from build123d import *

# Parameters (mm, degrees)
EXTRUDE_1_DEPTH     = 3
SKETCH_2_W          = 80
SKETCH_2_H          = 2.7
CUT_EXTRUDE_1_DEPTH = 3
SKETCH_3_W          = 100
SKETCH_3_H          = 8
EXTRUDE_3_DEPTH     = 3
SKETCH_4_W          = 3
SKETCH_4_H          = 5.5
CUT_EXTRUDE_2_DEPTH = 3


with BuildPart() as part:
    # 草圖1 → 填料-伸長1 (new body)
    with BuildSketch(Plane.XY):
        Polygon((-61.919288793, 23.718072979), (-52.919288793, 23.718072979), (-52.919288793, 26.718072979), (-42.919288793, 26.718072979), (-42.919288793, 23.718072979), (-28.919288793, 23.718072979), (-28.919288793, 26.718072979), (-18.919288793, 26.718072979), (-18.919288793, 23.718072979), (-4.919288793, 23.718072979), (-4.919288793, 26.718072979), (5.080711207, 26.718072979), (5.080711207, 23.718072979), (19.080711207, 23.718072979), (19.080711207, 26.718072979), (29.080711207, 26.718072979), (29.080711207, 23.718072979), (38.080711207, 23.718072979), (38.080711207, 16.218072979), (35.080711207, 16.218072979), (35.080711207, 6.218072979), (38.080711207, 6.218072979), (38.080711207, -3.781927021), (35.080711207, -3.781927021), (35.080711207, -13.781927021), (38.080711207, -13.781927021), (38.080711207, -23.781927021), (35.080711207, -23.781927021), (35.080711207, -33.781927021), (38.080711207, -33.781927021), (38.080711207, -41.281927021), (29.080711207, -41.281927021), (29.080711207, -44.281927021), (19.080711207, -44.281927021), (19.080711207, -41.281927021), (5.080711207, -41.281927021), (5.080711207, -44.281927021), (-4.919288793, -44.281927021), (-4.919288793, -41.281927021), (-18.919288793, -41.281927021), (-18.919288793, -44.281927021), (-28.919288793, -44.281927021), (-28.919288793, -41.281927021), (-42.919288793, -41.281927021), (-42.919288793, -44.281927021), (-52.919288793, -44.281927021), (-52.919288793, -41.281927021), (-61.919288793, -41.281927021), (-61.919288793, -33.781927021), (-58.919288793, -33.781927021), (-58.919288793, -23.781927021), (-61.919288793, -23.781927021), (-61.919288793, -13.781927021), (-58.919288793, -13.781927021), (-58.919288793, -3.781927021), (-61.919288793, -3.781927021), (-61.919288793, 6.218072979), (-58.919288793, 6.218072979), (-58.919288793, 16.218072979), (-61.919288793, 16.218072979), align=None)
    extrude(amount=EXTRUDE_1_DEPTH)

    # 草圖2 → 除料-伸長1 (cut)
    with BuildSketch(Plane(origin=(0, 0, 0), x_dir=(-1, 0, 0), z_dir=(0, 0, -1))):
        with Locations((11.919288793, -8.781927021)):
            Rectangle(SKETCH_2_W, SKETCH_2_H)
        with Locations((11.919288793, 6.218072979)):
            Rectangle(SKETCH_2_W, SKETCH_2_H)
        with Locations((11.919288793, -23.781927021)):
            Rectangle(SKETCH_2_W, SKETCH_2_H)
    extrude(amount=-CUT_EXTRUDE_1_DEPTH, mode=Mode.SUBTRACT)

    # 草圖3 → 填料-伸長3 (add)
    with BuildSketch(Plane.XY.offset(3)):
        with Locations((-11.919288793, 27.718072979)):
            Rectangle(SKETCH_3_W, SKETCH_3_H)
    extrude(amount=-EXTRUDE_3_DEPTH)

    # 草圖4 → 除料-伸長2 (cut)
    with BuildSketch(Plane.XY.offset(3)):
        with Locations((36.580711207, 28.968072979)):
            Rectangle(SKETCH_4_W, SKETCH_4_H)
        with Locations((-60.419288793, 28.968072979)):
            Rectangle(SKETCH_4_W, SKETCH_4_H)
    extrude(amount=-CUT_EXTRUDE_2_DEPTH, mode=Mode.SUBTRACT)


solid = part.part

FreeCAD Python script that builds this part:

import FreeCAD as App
import Part
import Sketcher
Q = App.Units.Quantity

doc = App.newDocument("Part")
body = doc.addObject("PartDesign::Body", "Body")

sketch1 = doc.addObject("Sketcher::SketchObject", "Sketch")
body.addObject(sketch1)
sketch1.AttachmentSupport = (doc.XY_Plane, [""])
sketch1.MapMode = "FlatFace"
sketch1.addGeometry([
    Part.LineSegment(App.Vector(-52.919289, 23.718073, 0), App.Vector(-61.919289, 23.718073, 0)),
    Part.LineSegment(App.Vector(-61.919289, 23.718073, 0), App.Vector(-61.919289, 16.218073, 0)),
    Part.LineSegment(App.Vector(-61.919289, 16.218073, 0), App.Vector(-58.919289, 16.218073, 0)),
    Part.LineSegment(App.Vector(-58.919289, 16.218073, 0), App.Vector(-58.919289, 6.218073, 0)),
    Part.LineSegment(App.Vector(-58.919289, 6.218073, 0), App.Vector(-61.919289, 6.218073, 0)),
    Part.LineSegment(App.Vector(-61.919289, 6.218073, 0), App.Vector(-61.919289, -3.781927, 0)),
    Part.LineSegment(App.Vector(-61.919289, -3.781927, 0), App.Vector(-58.919289, -3.781927, 0)),
    Part.LineSegment(App.Vector(-58.919289, -3.781927, 0), App.Vector(-58.919289, -13.781927, 0)),
    Part.LineSegment(App.Vector(-58.919289, -13.781927, 0), App.Vector(-61.919289, -13.781927, 0)),
    Part.LineSegment(App.Vector(-61.919289, -13.781927, 0), App.Vector(-61.919289, -23.781927, 0)),
    Part.LineSegment(App.Vector(-61.919289, -23.781927, 0), App.Vector(-58.919289, -23.781927, 0)),
    Part.LineSegment(App.Vector(-58.919289, -23.781927, 0), App.Vector(-58.919289, -33.781927, 0)),
    Part.LineSegment(App.Vector(-58.919289, -33.781927, 0), App.Vector(-61.919289, -33.781927, 0)),
    Part.LineSegment(App.Vector(-61.919289, -33.781927, 0), App.Vector(-61.919289, -41.281927, 0)),
    Part.LineSegment(App.Vector(-61.919289, -41.281927, 0), App.Vector(-52.919289, -41.281927, 0)),
    Part.LineSegment(App.Vector(-52.919289, -41.281927, 0), App.Vector(-52.919289, -44.281927, 0)),
    Part.LineSegment(App.Vector(-52.919289, -44.281927, 0), App.Vector(-42.919289, -44.281927, 0)),
    Part.LineSegment(App.Vector(-42.919289, -44.281927, 0), App.Vector(-42.919289, -41.281927, 0)),
    Part.LineSegment(App.Vector(-42.919289, -41.281927, 0), App.Vector(-28.919289, -41.281927, 0)),
    Part.LineSegment(App.Vector(-28.919289, -41.281927, 0), App.Vector(-28.919289, -44.281927, 0)),
    Part.LineSegment(App.Vector(-28.919289, -44.281927, 0), App.Vector(-18.919289, -44.281927, 0)),
    Part.LineSegment(App.Vector(-18.919289, -44.281927, 0), App.Vector(-18.919289, -41.281927, 0)),
    Part.LineSegment(App.Vector(-18.919289, -41.281927, 0), App.Vector(-4.919289, -41.281927, 0)),
    Part.LineSegment(App.Vector(-4.919289, -41.281927, 0), App.Vector(-4.919289, -44.281927, 0)),
    Part.LineSegment(App.Vector(-4.919289, -44.281927, 0), App.Vector(5.080711, -44.281927, 0)),
    Part.LineSegment(App.Vector(5.080711, -44.281927, 0), App.Vector(5.080711, -41.281927, 0)),
    Part.LineSegment(App.Vector(5.080711, -41.281927, 0), App.Vector(19.080711, -41.281927, 0)),
    Part.LineSegment(App.Vector(19.080711, -41.281927, 0), App.Vector(19.080711, -44.281927, 0)),
    Part.LineSegment(App.Vector(19.080711, -44.281927, 0), App.Vector(29.080711, -44.281927, 0)),
    Part.LineSegment(App.Vector(29.080711, -44.281927, 0), App.Vector(29.080711, -41.281927, 0)),
    Part.LineSegment(App.Vector(29.080711, -41.281927, 0), App.Vector(38.080711, -41.281927, 0)),
    Part.LineSegment(App.Vector(38.080711, -41.281927, 0), App.Vector(38.080711, -33.781927, 0)),
    Part.LineSegment(App.Vector(38.080711, -33.781927, 0), App.Vector(35.080711, -33.781927, 0)),
    Part.LineSegment(App.Vector(35.080711, -33.781927, 0), App.Vector(35.080711, -23.781927, 0)),
    Part.LineSegment(App.Vector(35.080711, -23.781927, 0), App.Vector(38.080711, -23.781927, 0)),
    Part.LineSegment(App.Vector(38.080711, -23.781927, 0), App.Vector(38.080711, -13.781927, 0)),
    Part.LineSegment(App.Vector(38.080711, -13.781927, 0), App.Vector(35.080711, -13.781927, 0)),
    Part.LineSegment(App.Vector(35.080711, -13.781927, 0), App.Vector(35.080711, -3.781927, 0)),
    Part.LineSegment(App.Vector(35.080711, -3.781927, 0), App.Vector(38.080711, -3.781927, 0)),
    Part.LineSegment(App.Vector(38.080711, -3.781927, 0), App.Vector(38.080711, 6.218073, 0)),
    Part.LineSegment(App.Vector(38.080711, 6.218073, 0), App.Vector(35.080711, 6.218073, 0)),
    Part.LineSegment(App.Vector(35.080711, 6.218073, 0), App.Vector(35.080711, 16.218073, 0)),
    Part.LineSegment(App.Vector(35.080711, 16.218073, 0), App.Vector(38.080711, 16.218073, 0)),
    Part.LineSegment(App.Vector(38.080711, 16.218073, 0), App.Vector(38.080711, 23.718073, 0)),
    Part.LineSegment(App.Vector(38.080711, 23.718073, 0), App.Vector(29.080711, 23.718073, 0)),
    Part.LineSegment(App.Vector(29.080711, 23.718073, 0), App.Vector(29.080711, 26.718073, 0)),
    Part.LineSegment(App.Vector(29.080711, 26.718073, 0), App.Vector(19.080711, 26.718073, 0)),
    Part.LineSegment(App.Vector(19.080711, 26.718073, 0), App.Vector(19.080711, 23.718073, 0)),
    Part.LineSegment(App.Vector(19.080711, 23.718073, 0), App.Vector(5.080711, 23.718073, 0)),
    Part.LineSegment(App.Vector(5.080711, 23.718073, 0), App.Vector(5.080711, 26.718073, 0)),
    Part.LineSegment(App.Vector(5.080711, 26.718073, 0), App.Vector(-4.919289, 26.718073, 0)),
    Part.LineSegment(App.Vector(-4.919289, 26.718073, 0), App.Vector(-4.919289, 23.718073, 0)),
    Part.LineSegment(App.Vector(-4.919289, 23.718073, 0), App.Vector(-18.919289, 23.718073, 0)),
    Part.LineSegment(App.Vector(-18.919289, 23.718073, 0), App.Vector(-18.919289, 26.718073, 0)),
    Part.LineSegment(App.Vector(-18.919289, 26.718073, 0), App.Vector(-28.919289, 26.718073, 0)),
    Part.LineSegment(App.Vector(-28.919289, 26.718073, 0), App.Vector(-28.919289, 23.718073, 0)),
    Part.LineSegment(App.Vector(-28.919289, 23.718073, 0), App.Vector(-42.919289, 23.718073, 0)),
    Part.LineSegment(App.Vector(-42.919289, 23.718073, 0), App.Vector(-42.919289, 26.718073, 0)),
    Part.LineSegment(App.Vector(-42.919289, 26.718073, 0), App.Vector(-52.919289, 26.718073, 0)),
    Part.LineSegment(App.Vector(-52.919289, 26.718073, 0), App.Vector(-52.919289, 23.718073, 0)),
], False)
sketch1.addConstraint([
    Sketcher.Constraint("Coincident", 0, 2, 1, 1),
    Sketcher.Constraint("Coincident", 1, 2, 2, 1),
    Sketcher.Constraint("Coincident", 2, 2, 3, 1),
    Sketcher.Constraint("Coincident", 3, 2, 4, 1),
    Sketcher.Constraint("Coincident", 4, 2, 5, 1),
    Sketcher.Constraint("Coincident", 5, 2, 6, 1),
    Sketcher.Constraint("Coincident", 6, 2, 7, 1),
    Sketcher.Constraint("Coincident", 7, 2, 8, 1),
    Sketcher.Constraint("Coincident", 8, 2, 9, 1),
    Sketcher.Constraint("Coincident", 9, 2, 10, 1),
    Sketcher.Constraint("Coincident", 10, 2, 11, 1),
    Sketcher.Constraint("Coincident", 11, 2, 12, 1),
    Sketcher.Constraint("Coincident", 12, 2, 13, 1),
    Sketcher.Constraint("Coincident", 13, 2, 14, 1),
    Sketcher.Constraint("Coincident", 14, 2, 15, 1),
    Sketcher.Constraint("Coincident", 15, 2, 16, 1),
    Sketcher.Constraint("Coincident", 16, 2, 17, 1),
    Sketcher.Constraint("Coincident", 17, 2, 18, 1),
    Sketcher.Constraint("Coincident", 18, 2, 19, 1),
    Sketcher.Constraint("Coincident", 19, 2, 20, 1),
    Sketcher.Constraint("Coincident", 20, 2, 21, 1),
    Sketcher.Constraint("Coincident", 21, 2, 22, 1),
    Sketcher.Constraint("Coincident", 22, 2, 23, 1),
    Sketcher.Constraint("Coincident", 23, 2, 24, 1),
    Sketcher.Constraint("Coincident", 24, 2, 25, 1),
    Sketcher.Constraint("Coincident", 25, 2, 26, 1),
    Sketcher.Constraint("Coincident", 26, 2, 27, 1),
    Sketcher.Constraint("Coincident", 27, 2, 28, 1),
    Sketcher.Constraint("Coincident", 28, 2, 29, 1),
    Sketcher.Constraint("Coincident", 29, 2, 30, 1),
    Sketcher.Constraint("Coincident", 30, 2, 31, 1),
    Sketcher.Constraint("Coincident", 31, 2, 32, 1),
    Sketcher.Constraint("Coincident", 32, 2, 33, 1),
    Sketcher.Constraint("Coincident", 33, 2, 34, 1),
    Sketcher.Constraint("Coincident", 34, 2, 35, 1),
    Sketcher.Constraint("Coincident", 35, 2, 36, 1),
    Sketcher.Constraint("Coincident", 36, 2, 37, 1),
    Sketcher.Constraint("Coincident", 37, 2, 38, 1),
    Sketcher.Constraint("Coincident", 38, 2, 39, 1),
    Sketcher.Constraint("Coincident", 39, 2, 40, 1),
    Sketcher.Constraint("Coincident", 40, 2, 41, 1),
    Sketcher.Constraint("Coincident", 41, 2, 42, 1),
    Sketcher.Constraint("Coincident", 42, 2, 43, 1),
    Sketcher.Constraint("Coincident", 43, 2, 44, 1),
    Sketcher.Constraint("Coincident", 44, 2, 45, 1),
    Sketcher.Constraint("Coincident", 45, 2, 46, 1),
    Sketcher.Constraint("Coincident", 46, 2, 47, 1),
    Sketcher.Constraint("Coincident", 47, 2, 48, 1),
    Sketcher.Constraint("Coincident", 48, 2, 49, 1),
    Sketcher.Constraint("Coincident", 49, 2, 50, 1),
    Sketcher.Constraint("Coincident", 50, 2, 51, 1),
    Sketcher.Constraint("Coincident", 51, 2, 52, 1),
    Sketcher.Constraint("Coincident", 52, 2, 53, 1),
    Sketcher.Constraint("Coincident", 53, 2, 54, 1),
    Sketcher.Constraint("Coincident", 54, 2, 55, 1),
    Sketcher.Constraint("Coincident", 55, 2, 56, 1),
    Sketcher.Constraint("Coincident", 56, 2, 57, 1),
    Sketcher.Constraint("Coincident", 57, 2, 58, 1),
    Sketcher.Constraint("Coincident", 58, 2, 59, 1),
    Sketcher.Constraint("Coincident", 59, 2, 0, 1),
    Sketcher.Constraint("Horizontal", 0),
    Sketcher.Constraint("Vertical", 1),
    Sketcher.Constraint("Horizontal", 2),
    Sketcher.Constraint("Vertical", 3),
    Sketcher.Constraint("Horizontal", 4),
    Sketcher.Constraint("Vertical", 5),
    Sketcher.Constraint("Horizontal", 6),
    Sketcher.Constraint("Vertical", 7),
    Sketcher.Constraint("Horizontal", 8),
    Sketcher.Constraint("Vertical", 9),
    Sketcher.Constraint("Horizontal", 10),
    Sketcher.Constraint("Vertical", 11),
    Sketcher.Constraint("Horizontal", 12),
    Sketcher.Constraint("Vertical", 13),
    Sketcher.Constraint("Horizontal", 14),
    Sketcher.Constraint("Vertical", 15),
    Sketcher.Constraint("Horizontal", 16),
    Sketcher.Constraint("Vertical", 17),
    Sketcher.Constraint("Horizontal", 18),
    Sketcher.Constraint("Vertical", 19),
    Sketcher.Constraint("Horizontal", 20),
    Sketcher.Constraint("Vertical", 21),
    Sketcher.Constraint("Horizontal", 22),
    Sketcher.Constraint("Vertical", 23),
    Sketcher.Constraint("Horizontal", 24),
    Sketcher.Constraint("Vertical", 25),
    Sketcher.Constraint("Horizontal", 26),
    Sketcher.Constraint("Vertical", 27),
    Sketcher.Constraint("Horizontal", 28),
    Sketcher.Constraint("Vertical", 29),
    Sketcher.Constraint("Horizontal", 30),
    Sketcher.Constraint("Vertical", 31),
    Sketcher.Constraint("Horizontal", 32),
    Sketcher.Constraint("Vertical", 33),
    Sketcher.Constraint("Horizontal", 34),
    Sketcher.Constraint("Vertical", 35),
    Sketcher.Constraint("Horizontal", 36),
    Sketcher.Constraint("Vertical", 37),
    Sketcher.Constraint("Horizontal", 38),
    Sketcher.Constraint("Vertical", 39),
    Sketcher.Constraint("Horizontal", 40),
    Sketcher.Constraint("Vertical", 41),
    Sketcher.Constraint("Horizontal", 42),
    Sketcher.Constraint("Vertical", 43),
    Sketcher.Constraint("Horizontal", 44),
    Sketcher.Constraint("Vertical", 45),
    Sketcher.Constraint("Horizontal", 46),
    Sketcher.Constraint("Vertical", 47),
    Sketcher.Constraint("Horizontal", 48),
    Sketcher.Constraint("Vertical", 49),
    Sketcher.Constraint("Horizontal", 50),
    Sketcher.Constraint("Vertical", 51),
    Sketcher.Constraint("Horizontal", 52),
    Sketcher.Constraint("Vertical", 53),
    Sketcher.Constraint("Horizontal", 54),
    Sketcher.Constraint("Vertical", 55),
    Sketcher.Constraint("Horizontal", 56),
    Sketcher.Constraint("Vertical", 57),
    Sketcher.Constraint("Horizontal", 58),
    Sketcher.Constraint("Vertical", 59),
    Sketcher.Constraint("Horizontal", 14, 2, 17, 2),
    Sketcher.Constraint("Horizontal", 16, 2, 19, 2),
    Sketcher.Constraint("Horizontal", 18, 2, 21, 2),
    Sketcher.Constraint("Horizontal", 20, 2, 23, 2),
    Sketcher.Constraint("Horizontal", 22, 2, 25, 2),
    Sketcher.Constraint("Horizontal", 24, 2, 27, 2),
    Sketcher.Constraint("Horizontal", 26, 2, 29, 2),
    Sketcher.Constraint("Horizontal", 12, 2, 31, 2),
    Sketcher.Constraint("Horizontal", 10, 2, 33, 2),
    Sketcher.Constraint("Horizontal", 8, 2, 35, 2),
    Sketcher.Constraint("Horizontal", 6, 2, 37, 2),
    Sketcher.Constraint("Horizontal", 4, 2, 39, 2),
    Sketcher.Constraint("Horizontal", 2, 2, 41, 2),
    Sketcher.Constraint("Horizontal", 0, 2, 43, 2),
    Sketcher.Constraint("Horizontal", 44, 2, 47, 2),
    Sketcher.Constraint("Horizontal", 46, 2, 49, 2),
    Sketcher.Constraint("Horizontal", 48, 2, 51, 2),
    Sketcher.Constraint("Horizontal", 50, 2, 53, 2),
    Sketcher.Constraint("Horizontal", 52, 2, 55, 2),
    Sketcher.Constraint("Horizontal", 54, 2, 57, 2),
    Sketcher.Constraint("Vertical", 1, 2, 4, 2),
    Sketcher.Constraint("Vertical", 3, 2, 6, 2),
    Sketcher.Constraint("Vertical", 5, 2, 8, 2),
    Sketcher.Constraint("Vertical", 7, 2, 10, 2),
    Sketcher.Constraint("Vertical", 9, 2, 12, 2),
    Sketcher.Constraint("Vertical", 31, 2, 34, 2),
    Sketcher.Constraint("Vertical", 33, 2, 36, 2),
    Sketcher.Constraint("Vertical", 35, 2, 38, 2),
    Sketcher.Constraint("Vertical", 37, 2, 40, 2),
    Sketcher.Constraint("Vertical", 39, 2, 42, 2),
    Sketcher.Constraint("Vertical", 29, 2, 44, 2),
    Sketcher.Constraint("Vertical", 27, 2, 46, 2),
    Sketcher.Constraint("Vertical", 25, 2, 48, 2),
    Sketcher.Constraint("Vertical", 23, 2, 50, 2),
    Sketcher.Constraint("Vertical", 21, 2, 52, 2),
    Sketcher.Constraint("Vertical", 19, 2, 54, 2),
    Sketcher.Constraint("Vertical", 17, 2, 56, 2),
    Sketcher.Constraint("Vertical", 15, 2, 58, 2),
    Sketcher.Constraint("Equal", 16, 20),
    Sketcher.Constraint("Equal", 18, 22),
    Sketcher.Constraint("Equal", 20, 24),
    Sketcher.Constraint("Equal", 22, 26),
    Sketcher.Constraint("Equal", 24, 28),
    Sketcher.Constraint("Equal", 14, 30),
    Sketcher.Constraint("Equal", 12, 32),
    Sketcher.Constraint("Equal", 58, 3),
    Sketcher.Constraint("Equal", 3, 5),
    Sketcher.Constraint("Equal", 5, 7),
    Sketcher.Constraint("Equal", 7, 9),
    Sketcher.Constraint("Equal", 9, 11),
    Sketcher.Constraint("Equal", 1, 13),
    Sketcher.Constraint("Equal", 42, 15),
    Sketcher.Constraint("Equal", 29, 45),
    Sketcher.Constraint("DistanceX", 0, 2, 0, 1, Q("9 mm")),
    Sketcher.Constraint("DistanceX", 2, 1, 2, 2, Q("3 mm")),
    Sketcher.Constraint("DistanceX", 16, 1, 16, 2, Q("10 mm")),
    Sketcher.Constraint("DistanceX", 18, 1, 18, 2, Q("14 mm")),
    Sketcher.Constraint("DistanceY", 1, 2, 1, 1, Q("7.5 mm")),
    Sketcher.Constraint("DistanceX", 0, 2, -1, 1, Q("61.919289 mm")),
    Sketcher.Constraint("DistanceY", -1, 1, 0, 2, Q("23.718073 mm")),
])
pad1 = doc.addObject("PartDesign::Pad", "Pad")
body.addObject(pad1)
pad1.Profile = sketch1
pad1.Length = 3

sketch2 = doc.addObject("Sketcher::SketchObject", "Sketch001")
body.addObject(sketch2)
sketch2.AttachmentSupport = (doc.XY_Plane, [""])
sketch2.MapMode = "FlatFace"
sketch2.addGeometry([
    Part.LineSegment(App.Vector(28.080711, -7.431927, 0), App.Vector(28.080711, -10.131927, 0)),
    Part.LineSegment(App.Vector(28.080711, -10.131927, 0), App.Vector(-51.919289, -10.131927, 0)),
    Part.LineSegment(App.Vector(-51.919289, -10.131927, 0), App.Vector(-51.919289, -7.431927, 0)),
    Part.LineSegment(App.Vector(-51.919289, -7.431927, 0), App.Vector(28.080711, -7.431927, 0)),
    Part.LineSegment(App.Vector(28.080711, 7.568073, 0), App.Vector(28.080711, 4.868073, 0)),
    Part.LineSegment(App.Vector(28.080711, 4.868073, 0), App.Vector(-51.919289, 4.868073, 0)),
    Part.LineSegment(App.Vector(-51.919289, 4.868073, 0), App.Vector(-51.919289, 7.568073, 0)),
    Part.LineSegment(App.Vector(-51.919289, 7.568073, 0), App.Vector(28.080711, 7.568073, 0)),
    Part.LineSegment(App.Vector(28.080711, -22.431927, 0), App.Vector(28.080711, -25.131927, 0)),
    Part.LineSegment(App.Vector(28.080711, -25.131927, 0), App.Vector(-51.919289, -25.131927, 0)),
    Part.LineSegment(App.Vector(-51.919289, -25.131927, 0), App.Vector(-51.919289, -22.431927, 0)),
    Part.LineSegment(App.Vector(-51.919289, -22.431927, 0), App.Vector(28.080711, -22.431927, 0)),
], False)
sketch2.addConstraint([
    Sketcher.Constraint("Coincident", 0, 2, 1, 1),
    Sketcher.Constraint("Coincident", 1, 2, 2, 1),
    Sketcher.Constraint("Coincident", 2, 2, 3, 1),
    Sketcher.Constraint("Coincident", 3, 2, 0, 1),
    Sketcher.Constraint("Coincident", 4, 2, 5, 1),
    Sketcher.Constraint("Coincident", 5, 2, 6, 1),
    Sketcher.Constraint("Coincident", 6, 2, 7, 1),
    Sketcher.Constraint("Coincident", 7, 2, 4, 1),
    Sketcher.Constraint("Coincident", 8, 2, 9, 1),
    Sketcher.Constraint("Coincident", 9, 2, 10, 1),
    Sketcher.Constraint("Coincident", 10, 2, 11, 1),
    Sketcher.Constraint("Coincident", 11, 2, 8, 1),
    Sketcher.Constraint("Vertical", 0),
    Sketcher.Constraint("Horizontal", 1),
    Sketcher.Constraint("Vertical", 2),
    Sketcher.Constraint("Horizontal", 3),
    Sketcher.Constraint("Vertical", 4),
    Sketcher.Constraint("Horizontal", 5),
    Sketcher.Constraint("Vertical", 6),
    Sketcher.Constraint("Horizontal", 7),
    Sketcher.Constraint("Vertical", 8),
    Sketcher.Constraint("Horizontal", 9),
    Sketcher.Constraint("Vertical", 10),
    Sketcher.Constraint("Horizontal", 11),
    Sketcher.Constraint("Vertical", 3, 2, 4, 2),
    Sketcher.Constraint("Vertical", 2, 2, 5, 2),
    Sketcher.Constraint("Vertical", 7, 2, 8, 2),
    Sketcher.Constraint("Vertical", 6, 2, 9, 2),
    Sketcher.Constraint("Equal", 2, 4),
    Sketcher.Constraint("Equal", 6, 8),
    Sketcher.Constraint("DistanceX", 1, 2, 1, 1, Q("80 mm")),
    Sketcher.Constraint("DistanceY", 0, 2, 0, 1, Q("2.7 mm")),
    Sketcher.Constraint("DistanceY", 0, 2, 4, 2, Q("15 mm")),
    Sketcher.Constraint("DistanceY", 8, 2, 0, 2, Q("15 mm")),
    Sketcher.Constraint("DistanceX", -1, 1, 0, 2, Q("28.080711 mm")),
    Sketcher.Constraint("DistanceY", 0, 2, -1, 1, Q("10.131927 mm")),
])
pocket1 = doc.addObject("PartDesign::Pocket", "Pocket")
body.addObject(pocket1)
pocket1.Profile = sketch2
pocket1.Length = 3
pocket1.Reversed = True

sketch3 = doc.addObject("Sketcher::SketchObject", "Sketch002")
body.addObject(sketch3)
sketch3.AttachmentSupport = (doc.XY_Plane, [""])
sketch3.MapMode = "FlatFace"
sketch3.AttachmentOffset = App.Placement(App.Vector(0, 0, 3), App.Rotation())
sketch3.addGeometry([
    Part.LineSegment(App.Vector(-61.919289, 31.718073, 0), App.Vector(-61.919289, 23.718073, 0)),
    Part.LineSegment(App.Vector(-61.919289, 23.718073, 0), App.Vector(38.080711, 23.718073, 0)),
    Part.LineSegment(App.Vector(38.080711, 23.718073, 0), App.Vector(38.080711, 31.718073, 0)),
    Part.LineSegment(App.Vector(38.080711, 31.718073, 0), App.Vector(-61.919289, 31.718073, 0)),
], False)
sketch3.addConstraint([
    Sketcher.Constraint("Coincident", 0, 2, 1, 1),
    Sketcher.Constraint("Coincident", 1, 2, 2, 1),
    Sketcher.Constraint("Coincident", 2, 2, 3, 1),
    Sketcher.Constraint("Coincident", 3, 2, 0, 1),
    Sketcher.Constraint("Vertical", 0),
    Sketcher.Constraint("Horizontal", 1),
    Sketcher.Constraint("Vertical", 2),
    Sketcher.Constraint("Horizontal", 3),
    Sketcher.Constraint("DistanceX", 1, 1, 1, 2, Q("100 mm")),
    Sketcher.Constraint("DistanceY", 0, 2, 0, 1, Q("8 mm")),
    Sketcher.Constraint("DistanceX", 0, 2, -1, 1, Q("61.919289 mm")),
    Sketcher.Constraint("DistanceY", -1, 1, 0, 2, Q("23.718073 mm")),
])
pad2 = doc.addObject("PartDesign::Pad", "Pad001")
body.addObject(pad2)
pad2.Profile = sketch3
pad2.Length = 3
pad2.Reversed = True

sketch4 = doc.addObject("Sketcher::SketchObject", "Sketch003")
body.addObject(sketch4)
sketch4.AttachmentSupport = (doc.XY_Plane, [""])
sketch4.MapMode = "FlatFace"
sketch4.AttachmentOffset = App.Placement(App.Vector(0, 0, 3), App.Rotation())
sketch4.addGeometry([
    Part.LineSegment(App.Vector(35.080711, 31.718073, 0), App.Vector(35.080711, 26.218073, 0)),
    Part.LineSegment(App.Vector(35.080711, 26.218073, 0), App.Vector(38.080711, 26.218073, 0)),
    Part.LineSegment(App.Vector(38.080711, 26.218073, 0), App.Vector(38.080711, 31.718073, 0)),
    Part.LineSegment(App.Vector(38.080711, 31.718073, 0), App.Vector(35.080711, 31.718073, 0)),
    Part.LineSegment(App.Vector(-61.919289, 31.718073, 0), App.Vector(-61.919289, 26.218073, 0)),
    Part.LineSegment(App.Vector(-61.919289, 26.218073, 0), App.Vector(-58.919289, 26.218073, 0)),
    Part.LineSegment(App.Vector(-58.919289, 26.218073, 0), App.Vector(-58.919289, 31.718073, 0)),
    Part.LineSegment(App.Vector(-58.919289, 31.718073, 0), App.Vector(-61.919289, 31.718073, 0)),
], False)
sketch4.addConstraint([
    Sketcher.Constraint("Coincident", 0, 2, 1, 1),
    Sketcher.Constraint("Coincident", 1, 2, 2, 1),
    Sketcher.Constraint("Coincident", 2, 2, 3, 1),
    Sketcher.Constraint("Coincident", 3, 2, 0, 1),
    Sketcher.Constraint("Coincident", 4, 2, 5, 1),
    Sketcher.Constraint("Coincident", 5, 2, 6, 1),
    Sketcher.Constraint("Coincident", 6, 2, 7, 1),
    Sketcher.Constraint("Coincident", 7, 2, 4, 1),
    Sketcher.Constraint("Vertical", 0),
    Sketcher.Constraint("Horizontal", 1),
    Sketcher.Constraint("Vertical", 2),
    Sketcher.Constraint("Horizontal", 3),
    Sketcher.Constraint("Vertical", 4),
    Sketcher.Constraint("Horizontal", 5),
    Sketcher.Constraint("Vertical", 6),
    Sketcher.Constraint("Horizontal", 7),
    Sketcher.Constraint("Horizontal", 1, 2, 4, 2),
    Sketcher.Constraint("Horizontal", 3, 2, 6, 2),
    Sketcher.Constraint("Equal", 3, 5),
    Sketcher.Constraint("DistanceX", 1, 1, 1, 2, Q("3 mm")),
    Sketcher.Constraint("DistanceY", 0, 2, 0, 1, Q("5.5 mm")),
    Sketcher.Constraint("DistanceX", 4, 2, 0, 2, Q("97 mm")),
    Sketcher.Constraint("DistanceX", -1, 1, 0, 2, Q("35.080711 mm")),
    Sketcher.Constraint("DistanceY", -1, 1, 0, 2, Q("26.218073 mm")),
])
pocket2 = doc.addObject("PartDesign::Pocket", "Pocket001")
body.addObject(pocket2)
pocket2.Profile = sketch4
pocket2.Length = 3

doc.recompute()
